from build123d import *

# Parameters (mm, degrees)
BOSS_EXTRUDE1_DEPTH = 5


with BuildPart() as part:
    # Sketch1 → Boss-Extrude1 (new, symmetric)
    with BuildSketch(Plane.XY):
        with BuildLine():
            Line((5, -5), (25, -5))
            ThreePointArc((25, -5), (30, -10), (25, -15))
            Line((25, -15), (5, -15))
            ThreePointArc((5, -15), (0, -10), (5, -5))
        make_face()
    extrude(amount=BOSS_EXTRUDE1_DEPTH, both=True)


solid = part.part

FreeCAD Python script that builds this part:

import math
import FreeCAD as App
import Part
import Sketcher
from FreeCAD import Vector

doc = App.newDocument("Part")
body = doc.addObject("PartDesign::Body", "Body")

# Sketch on XY plane
sketch1 = body.newObject("Sketcher::SketchObject", "Sketch")
sketch1.AttachmentSupport = (doc.getObject("XY_Plane"), [""])
sketch1.MapMode = "FlatFace"
sketch1.addGeometry(Part.LineSegment(Vector(25, -5, 0), Vector(5, -5, 0)), False)
sketch1.addGeometry(Part.ArcOfCircle(Part.Circle(Vector(5, -10, 0), Vector(0, 0, 1), 5), math.radians(90), math.radians(270)), False)
sketch1.addGeometry(Part.LineSegment(Vector(5, -15, 0), Vector(25, -15, 0)), False)
sketch1.addGeometry(Part.ArcOfCircle(Part.Circle(Vector(25, -10, 0), Vector(0, 0, 1), 5), math.radians(-90), math.radians(90)), False)
sketch1.addConstraint(Sketcher.Constraint("Tangent", 0, 2, 1, 1))
sketch1.addConstraint(Sketcher.Constraint("Tangent", 1, 2, 2, 1))
sketch1.addConstraint(Sketcher.Constraint("Tangent", 2, 2, 3, 1))
sketch1.addConstraint(Sketcher.Constraint("Tangent", 3, 2, 0, 1))
sketch1.addConstraint(Sketcher.Constraint("Horizontal", 0))
sketch1.addConstraint(Sketcher.Constraint("Horizontal", 2))
sketch1.addConstraint(Sketcher.Constraint("Radius", 1, 5.0))
sketch1.addConstraint(Sketcher.Constraint("DistanceX", 0, 2, 0, 1, 20.0))
sketch1.addConstraint(Sketcher.Constraint("DistanceX", -1, 1, 1, 3, 5.0))
sketch1.addConstraint(Sketcher.Constraint("DistanceY", 1, 3, -1, 1, 10.0))
pad1 = body.newObject("PartDesign::Pad", "Pad")
pad1.Profile = sketch1
pad1.Length = 10
pad1.Midplane = True

doc.recompute()
